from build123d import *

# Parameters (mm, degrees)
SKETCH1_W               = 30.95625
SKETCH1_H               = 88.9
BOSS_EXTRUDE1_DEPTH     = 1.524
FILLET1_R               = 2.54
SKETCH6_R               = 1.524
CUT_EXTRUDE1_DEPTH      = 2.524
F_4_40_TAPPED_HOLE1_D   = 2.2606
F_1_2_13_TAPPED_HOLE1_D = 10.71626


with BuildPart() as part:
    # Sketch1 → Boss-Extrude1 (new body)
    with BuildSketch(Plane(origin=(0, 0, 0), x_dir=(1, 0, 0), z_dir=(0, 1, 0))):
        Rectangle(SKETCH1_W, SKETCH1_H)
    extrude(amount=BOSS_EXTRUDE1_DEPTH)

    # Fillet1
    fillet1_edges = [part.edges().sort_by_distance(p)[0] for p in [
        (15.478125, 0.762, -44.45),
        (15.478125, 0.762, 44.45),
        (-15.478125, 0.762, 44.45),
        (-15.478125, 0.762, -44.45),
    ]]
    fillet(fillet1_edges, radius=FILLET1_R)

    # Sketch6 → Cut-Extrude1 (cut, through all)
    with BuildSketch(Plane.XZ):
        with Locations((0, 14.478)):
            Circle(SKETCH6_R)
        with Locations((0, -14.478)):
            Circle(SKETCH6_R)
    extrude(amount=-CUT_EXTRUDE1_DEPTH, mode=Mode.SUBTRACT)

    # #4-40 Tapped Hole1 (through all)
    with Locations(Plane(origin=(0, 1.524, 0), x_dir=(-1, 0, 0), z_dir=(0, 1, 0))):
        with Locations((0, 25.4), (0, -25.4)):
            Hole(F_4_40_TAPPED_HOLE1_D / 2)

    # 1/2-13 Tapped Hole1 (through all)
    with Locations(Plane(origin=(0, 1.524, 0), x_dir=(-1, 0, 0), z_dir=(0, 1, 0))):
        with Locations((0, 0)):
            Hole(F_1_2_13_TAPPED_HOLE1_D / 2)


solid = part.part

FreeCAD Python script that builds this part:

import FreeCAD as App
import Part
import Sketcher

V = App.Vector
Q = App.Units.Quantity


def edges_at(feature, points):
    """Names of the edges that pass closest to the given points."""
    edges = feature.Shape.Edges
    near = lambda p: min(range(len(edges)), key=lambda i: edges[i].distToShape(Part.Vertex(*p))[0])
    return sorted({f"Edge{near(p) + 1}" for p in points})

doc = App.newDocument("Part")
body = doc.addObject("PartDesign::Body", "Body")

# Sketch on XZ plane
sketch1 = doc.addObject("Sketcher::SketchObject", "Sketch")
body.addObject(sketch1)
sketch1.AttachmentSupport = (doc.XZ_Plane, [""])
sketch1.MapMode = "FlatFace"
sketch1.addGeometry(Part.LineSegment(V(-15.478125, -44.45, 0), V(-15.478125, 44.45, 0)), False)
sketch1.addGeometry(Part.LineSegment(V(-15.478125, 44.45, 0), V(15.478125, 44.45, 0)), False)
sketch1.addGeometry(Part.LineSegment(V(15.478125, 44.45, 0), V(15.478125, -44.45, 0)), False)
sketch1.addGeometry(Part.LineSegment(V(15.478125, -44.45, 0), V(-15.478125, -44.45, 0)), False)
sketch1.addConstraint(Sketcher.Constraint("Coincident", 0, 2, 1, 1))
sketch1.addConstraint(Sketcher.Constraint("Coincident", 1, 2, 2, 1))
sketch1.addConstraint(Sketcher.Constraint("Coincident", 2, 2, 3, 1))
sketch1.addConstraint(Sketcher.Constraint("Coincident", 3, 2, 0, 1))
sketch1.addConstraint(Sketcher.Constraint("Vertical", 0))
sketch1.addConstraint(Sketcher.Constraint("Horizontal", 1))
sketch1.addConstraint(Sketcher.Constraint("Vertical", 2))
sketch1.addConstraint(Sketcher.Constraint("Horizontal", 3))
sketch1.addConstraint(Sketcher.Constraint("Symmetric", 0, 2, 2, 2, -1, 1))
sketch1.addConstraint(Sketcher.Constraint("DistanceY", 0, 1, 0, 2, Q("3.5 in")))
sketch1.addConstraint(Sketcher.Constraint("DistanceX", 1, 1, 1, 2, Q("1.21875 in")))
pad1 = doc.addObject("PartDesign::Pad", "Pad")
body.addObject(pad1)
pad1.Profile = sketch1
pad1.Length = Q("0.06 in")
pad1.Reversed = True
doc.recompute()

fillet = doc.addObject("PartDesign::Fillet", "Fillet")
body.addObject(fillet)
fillet.Base = (pad1, edges_at(pad1, [
    (15.478, 0.762, -44.45),
    (15.478, 0.762, 44.45),
    (-15.478, 0.762, 44.45),
    (-15.478, 0.762, -44.45),
]))
fillet.Radius = Q("0.1 in")

# Sketch on XZ plane
sketch2 = doc.addObject("Sketcher::SketchObject", "Sketch001")
body.addObject(sketch2)
sketch2.AttachmentSupport = (doc.XZ_Plane, [""])
sketch2.MapMode = "FlatFace"
sketch2.addGeometry(Part.Circle(V(0, 14.478, 0), V(0, 0, 1), 1.524), False)
sketch2.addGeometry(Part.Circle(V(0, -14.478, 0), V(0, 0, 1), 1.524), False)
sketch2.addConstraint(Sketcher.Constraint("Equal", 0, 1))
sketch2.addConstraint(Sketcher.Constraint("Symmetric", 0, 3, 1, 3, -1, 1))
sketch2.addConstraint(Sketcher.Constraint("PointOnObject", 0, 3, -2))
sketch2.addConstraint(Sketcher.Constraint("Diameter", 0, Q("0.12 in")))
sketch2.addConstraint(Sketcher.Constraint("DistanceY", -1, 1, 0, 3, Q("0.57 in")))
pocket1 = doc.addObject("PartDesign::Pocket", "Pocket")
body.addObject(pocket1)
pocket1.Profile = sketch2
pocket1.Type = "ThroughAll"

# Sketch on XZ plane
sketch3 = doc.addObject("Sketcher::SketchObject", "Sketch002")
body.addObject(sketch3)
sketch3.AttachmentSupport = (doc.XZ_Plane, [""])
sketch3.MapMode = "FlatFace"
sketch3.AttachmentOffset = App.Placement(V(0, 0, -0.06 * 25.4), App.Rotation())
sketch3.addGeometry(Part.Circle(V(0, 25.4, 0), V(0, 0, 1), 1.1303), False)
sketch3.addGeometry(Part.Circle(V(0, -25.4, 0), V(0, 0, 1), 1.1303), False)
sketch3.addConstraint(Sketcher.Constraint("Equal", 0, 1))
sketch3.addConstraint(Sketcher.Constraint("Symmetric", 0, 3, 1, 3, -1, 1))
sketch3.addConstraint(Sketcher.Constraint("PointOnObject", 0, 3, -2))
sketch3.addConstraint(Sketcher.Constraint("Diameter", 0, Q("0.089 in")))
sketch3.addConstraint(Sketcher.Constraint("DistanceY", -1, 1, 0, 3, Q("1 in")))
doc.recompute()
hole = doc.addObject("PartDesign::Hole", "Hole")
body.addObject(hole)
hole.Profile = sketch3
hole.ThreadType = "None"
hole.Diameter = Q("0.089 in")
hole.DepthType = "ThroughAll"
hole.Reversed = True

# Sketch on XZ plane
sketch4 = doc.addObject("Sketcher::SketchObject", "Sketch003")
body.addObject(sketch4)
sketch4.AttachmentSupport = (doc.XZ_Plane, [""])
sketch4.MapMode = "FlatFace"
sketch4.AttachmentOffset = App.Placement(V(0, 0, -0.06 * 25.4), App.Rotation())
sketch4.addGeometry(Part.Circle(V(0, 0, 0), V(0, 0, 1), 5.35813), False)
sketch4.addConstraint(Sketcher.Constraint("Coincident", 0, 3, -1, 1))
sketch4.addConstraint(Sketcher.Constraint("Diameter", 0, Q("0.4219 in")))
doc.recompute()
hole2 = doc.addObject("PartDesign::Hole", "Hole001")
body.addObject(hole2)
hole2.Profile = sketch4
hole2.ThreadType = "None"
hole2.Diameter = Q("0.4219 in")
hole2.DepthType = "ThroughAll"
hole2.Reversed = True

doc.recompute()
